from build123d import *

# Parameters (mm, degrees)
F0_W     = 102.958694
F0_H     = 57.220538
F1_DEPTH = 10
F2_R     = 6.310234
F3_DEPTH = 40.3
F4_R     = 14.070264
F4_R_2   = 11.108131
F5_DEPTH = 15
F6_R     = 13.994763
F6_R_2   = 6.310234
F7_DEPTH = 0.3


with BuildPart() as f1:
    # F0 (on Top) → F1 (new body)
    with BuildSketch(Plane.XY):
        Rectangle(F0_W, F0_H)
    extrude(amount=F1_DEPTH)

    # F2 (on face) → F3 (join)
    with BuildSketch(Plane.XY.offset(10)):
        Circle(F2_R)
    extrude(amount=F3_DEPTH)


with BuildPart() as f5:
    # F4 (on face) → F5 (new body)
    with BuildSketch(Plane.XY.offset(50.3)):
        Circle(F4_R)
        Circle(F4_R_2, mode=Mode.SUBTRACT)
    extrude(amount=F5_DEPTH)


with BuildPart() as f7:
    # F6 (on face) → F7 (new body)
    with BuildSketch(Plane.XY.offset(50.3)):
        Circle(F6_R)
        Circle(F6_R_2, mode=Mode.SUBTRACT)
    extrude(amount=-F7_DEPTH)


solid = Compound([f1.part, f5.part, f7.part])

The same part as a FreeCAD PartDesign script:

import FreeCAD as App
import Part
import Sketcher


def add_polygon(sketch, points):
    """Adds a closed chain of lines whose ends are joined by coincident constraints."""
    first, n = sketch.GeometryCount, len(points)
    for a, b in zip(points, points[1:] + points[:1]):
        sketch.addGeometry(Part.LineSegment(App.Vector(*a, 0), App.Vector(*b, 0)), False)
    for i in range(n):
        sketch.addConstraint(Sketcher.Constraint("Coincident", first + i, 2, first + (i + 1) % n, 1))

doc = App.newDocument("Part")
params = doc.addObject("Spreadsheet::Sheet", "Params")
for row, (alias, value) in enumerate([
    ("pad1_length", "10 mm"),
    ("pad2_length", "40.3 mm"),
    ("pad3_length", "15 mm"),
    ("pad4_length", "0.3 mm"),
], start=1):
    params.set(f"A{row}", alias)
    params.set(f"B{row}", "=" + value)
    params.setAlias(f"B{row}", alias)

body = doc.addObject("PartDesign::Body", "Body")

# Sketch on XY plane
sketch1 = body.newObject("Sketcher::SketchObject", "Sketch")
sketch1.AttachmentSupport = (doc.getObject("XY_Plane"), [""])
sketch1.MapMode = "FlatFace"
add_polygon(sketch1, [(-51.479347, 28.610269), (-51.479347, -28.610269), (51.479347, -28.610269), (51.479347, 28.610269)])  # lines 0-3
sketch1.addConstraint([
    Sketcher.Constraint("Vertical", 0),
    Sketcher.Constraint("Horizontal", 1),
    Sketcher.Constraint("Vertical", 2),
    Sketcher.Constraint("Horizontal", 3),
    Sketcher.Constraint("Symmetric", 0, 2, 2, 2, -1, 1),
    Sketcher.Constraint("DistanceX", 1, 1, 1, 2, 102.958694),
    Sketcher.Constraint("DistanceY", 0, 2, 0, 1, 57.220538),
])
pad1 = body.newObject("PartDesign::Pad", "Pad")
pad1.Profile = sketch1
pad1.setExpression("Length", "Params.pad1_length")

# Sketch on XY plane
sketch2 = body.newObject("Sketcher::SketchObject", "Sketch001")
sketch2.AttachmentSupport = (doc.getObject("XY_Plane"), [""])
sketch2.MapMode = "FlatFace"
sketch2.AttachmentOffset = App.Placement(App.Vector(0, 0, 10), App.Rotation())
sketch2.addGeometry(Part.Circle(App.Vector(0, 0, 0), App.Vector(0, 0, 1), 6.310234), False)
sketch2.addConstraint([
    Sketcher.Constraint("Coincident", 0, 3, -1, 1),
    Sketcher.Constraint("Diameter", 0, 12.620468),
])
pad2 = body.newObject("PartDesign::Pad", "Pad001")
pad2.Profile = sketch2
pad2.setExpression("Length", "Params.pad2_length")
body2 = doc.addObject("PartDesign::Body", "Body001")

# Sketch on XY plane
sketch3 = body2.newObject("Sketcher::SketchObject", "Sketch002")
sketch3.AttachmentSupport = (doc.getObject("XY_Plane001"), [""])
sketch3.MapMode = "FlatFace"
sketch3.AttachmentOffset = App.Placement(App.Vector(0, 0, 50.3), App.Rotation())
sketch3.addGeometry([
    Part.Circle(App.Vector(0, 0, 0), App.Vector(0, 0, 1), 14.070264),
    Part.Circle(App.Vector(0, 0, 0), App.Vector(0, 0, 1), 11.108131),
], False)
sketch3.addConstraint([
    Sketcher.Constraint("Coincident", 0, 3, -1, 1),
    Sketcher.Constraint("Coincident", 1, 3, -1, 1),
    Sketcher.Constraint("Diameter", 0, 28.140528),
    Sketcher.Constraint("Diameter", 1, 22.216262),
])
pad3 = body2.newObject("PartDesign::Pad", "Pad002")
pad3.Profile = sketch3
pad3.setExpression("Length", "Params.pad3_length")
body3 = doc.addObject("PartDesign::Body", "Body002")

# Sketch on XY plane
sketch4 = body3.newObject("Sketcher::SketchObject", "Sketch003")
sketch4.AttachmentSupport = (doc.getObject("XY_Plane002"), [""])
sketch4.MapMode = "FlatFace"
sketch4.AttachmentOffset = App.Placement(App.Vector(0, 0, 50.3), App.Rotation())
sketch4.addGeometry([
    Part.Circle(App.Vector(0, 0, 0), App.Vector(0, 0, 1), 13.994763),
    Part.Circle(App.Vector(0, 0, 0), App.Vector(0, 0, 1), 6.310234),
], False)
sketch4.addConstraint([
    Sketcher.Constraint("Coincident", 0, 3, -1, 1),
    Sketcher.Constraint("Coincident", 1, 3, -1, 1),
    Sketcher.Constraint("Diameter", 1, 12.620468),
    Sketcher.Constraint("Diameter", 0, 27.989526),
])
pad4 = body3.newObject("PartDesign::Pad", "Pad003")
pad4.Profile = sketch4
pad4.setExpression("Length", "Params.pad4_length")
pad4.Reversed = True

doc.recompute()
